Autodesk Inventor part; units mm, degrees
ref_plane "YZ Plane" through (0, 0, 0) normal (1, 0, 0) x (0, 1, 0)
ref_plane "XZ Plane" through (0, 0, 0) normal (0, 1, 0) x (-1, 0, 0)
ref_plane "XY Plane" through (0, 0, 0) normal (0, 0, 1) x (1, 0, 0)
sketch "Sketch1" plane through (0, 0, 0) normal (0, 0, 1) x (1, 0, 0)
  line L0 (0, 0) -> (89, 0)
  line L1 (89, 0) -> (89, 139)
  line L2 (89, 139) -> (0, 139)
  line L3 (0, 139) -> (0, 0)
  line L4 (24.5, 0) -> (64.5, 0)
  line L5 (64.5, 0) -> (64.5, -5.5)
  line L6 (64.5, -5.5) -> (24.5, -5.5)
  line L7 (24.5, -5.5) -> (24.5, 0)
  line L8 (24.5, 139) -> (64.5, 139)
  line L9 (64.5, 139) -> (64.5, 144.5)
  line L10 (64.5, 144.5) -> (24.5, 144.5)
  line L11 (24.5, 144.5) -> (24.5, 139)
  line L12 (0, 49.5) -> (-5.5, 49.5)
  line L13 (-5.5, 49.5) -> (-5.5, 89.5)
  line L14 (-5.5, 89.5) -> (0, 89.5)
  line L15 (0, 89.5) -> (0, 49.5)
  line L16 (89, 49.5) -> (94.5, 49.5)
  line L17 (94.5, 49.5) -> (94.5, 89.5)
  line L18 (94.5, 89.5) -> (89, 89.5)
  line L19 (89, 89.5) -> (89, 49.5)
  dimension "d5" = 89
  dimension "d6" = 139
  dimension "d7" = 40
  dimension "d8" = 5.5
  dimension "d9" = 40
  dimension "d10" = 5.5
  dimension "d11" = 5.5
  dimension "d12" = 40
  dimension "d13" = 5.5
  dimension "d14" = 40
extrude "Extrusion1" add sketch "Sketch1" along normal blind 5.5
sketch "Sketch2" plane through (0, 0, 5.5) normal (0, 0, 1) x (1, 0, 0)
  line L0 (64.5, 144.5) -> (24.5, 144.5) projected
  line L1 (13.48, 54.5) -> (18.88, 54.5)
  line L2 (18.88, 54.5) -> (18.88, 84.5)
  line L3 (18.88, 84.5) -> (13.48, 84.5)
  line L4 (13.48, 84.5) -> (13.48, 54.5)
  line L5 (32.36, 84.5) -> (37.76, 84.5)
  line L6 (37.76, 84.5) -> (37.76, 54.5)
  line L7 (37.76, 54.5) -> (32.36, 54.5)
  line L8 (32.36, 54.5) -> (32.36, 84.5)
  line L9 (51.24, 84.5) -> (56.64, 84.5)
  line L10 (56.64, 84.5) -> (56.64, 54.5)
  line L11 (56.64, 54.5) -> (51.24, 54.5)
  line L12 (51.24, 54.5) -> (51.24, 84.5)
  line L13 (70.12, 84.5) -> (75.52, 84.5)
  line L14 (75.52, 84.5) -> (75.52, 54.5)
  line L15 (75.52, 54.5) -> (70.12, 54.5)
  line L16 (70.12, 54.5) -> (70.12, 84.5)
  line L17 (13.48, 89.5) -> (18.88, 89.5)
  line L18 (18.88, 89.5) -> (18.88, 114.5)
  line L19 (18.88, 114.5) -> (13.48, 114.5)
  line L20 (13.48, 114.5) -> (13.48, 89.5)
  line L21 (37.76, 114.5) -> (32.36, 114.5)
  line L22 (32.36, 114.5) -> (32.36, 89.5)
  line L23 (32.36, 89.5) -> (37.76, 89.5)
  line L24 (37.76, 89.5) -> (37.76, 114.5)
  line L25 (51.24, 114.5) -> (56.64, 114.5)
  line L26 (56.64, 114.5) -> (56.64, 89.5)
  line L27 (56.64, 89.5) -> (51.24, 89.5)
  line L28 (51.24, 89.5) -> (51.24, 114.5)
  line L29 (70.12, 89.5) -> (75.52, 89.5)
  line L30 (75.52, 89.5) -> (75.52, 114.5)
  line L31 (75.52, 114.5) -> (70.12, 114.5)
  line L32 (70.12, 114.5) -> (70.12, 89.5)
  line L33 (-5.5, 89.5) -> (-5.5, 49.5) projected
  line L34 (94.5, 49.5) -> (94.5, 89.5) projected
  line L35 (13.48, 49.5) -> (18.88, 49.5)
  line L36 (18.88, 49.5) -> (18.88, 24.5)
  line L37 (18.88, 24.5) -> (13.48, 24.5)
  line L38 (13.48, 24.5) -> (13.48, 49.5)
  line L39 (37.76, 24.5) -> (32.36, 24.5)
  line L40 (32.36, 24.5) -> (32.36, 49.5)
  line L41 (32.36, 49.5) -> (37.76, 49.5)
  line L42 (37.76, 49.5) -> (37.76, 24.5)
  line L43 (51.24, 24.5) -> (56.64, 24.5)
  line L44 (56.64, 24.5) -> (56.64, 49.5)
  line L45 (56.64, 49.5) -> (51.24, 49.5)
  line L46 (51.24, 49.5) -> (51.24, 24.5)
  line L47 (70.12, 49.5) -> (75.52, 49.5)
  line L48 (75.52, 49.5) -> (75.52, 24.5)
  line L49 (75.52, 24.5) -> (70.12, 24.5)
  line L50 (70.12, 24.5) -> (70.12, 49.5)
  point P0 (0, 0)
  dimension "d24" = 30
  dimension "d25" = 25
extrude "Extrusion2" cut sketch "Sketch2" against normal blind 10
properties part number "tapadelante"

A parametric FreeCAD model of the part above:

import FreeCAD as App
import Part
import Sketcher


def add_polygon(sketch, points):
    """Adds a closed chain of lines whose ends are joined by coincident constraints."""
    first, n = sketch.GeometryCount, len(points)
    for a, b in zip(points, points[1:] + points[:1]):
        sketch.addGeometry(Part.LineSegment(App.Vector(*a, 0), App.Vector(*b, 0)), False)
    for i in range(n):
        sketch.addConstraint(Sketcher.Constraint("Coincident", first + i, 2, first + (i + 1) % n, 1))

doc = App.newDocument("Part")
body = doc.addObject("PartDesign::Body", "Body")

sketch1 = body.newObject("Sketcher::SketchObject", "Sketch")
sketch1.AttachmentSupport = (doc.getObject("XY_Plane"), [""])
sketch1.MapMode = "FlatFace"
add_polygon(sketch1, [(0, 50), (0, 0), (24, 0), (24, -6), (64, -6), (64, 0), (89, 0), (89, 50), (94, 50), (94, 90), (89, 90), (89, 139), (64, 139), (64, 144), (24, 144), (24, 139), (0, 139), (0, 90), (-6, 90), (-6, 50)])
sketch1.addConstraint(Sketcher.Constraint("Vertical", 0))
sketch1.addConstraint(Sketcher.Constraint("Horizontal", 1))
sketch1.addConstraint(Sketcher.Constraint("Vertical", 2))
sketch1.addConstraint(Sketcher.Constraint("Horizontal", 3))
sketch1.addConstraint(Sketcher.Constraint("Vertical", 4))
sketch1.addConstraint(Sketcher.Constraint("Horizontal", 5))
sketch1.addConstraint(Sketcher.Constraint("Vertical", 6))
sketch1.addConstraint(Sketcher.Constraint("Horizontal", 7))
sketch1.addConstraint(Sketcher.Constraint("Vertical", 8))
sketch1.addConstraint(Sketcher.Constraint("Horizontal", 9))
sketch1.addConstraint(Sketcher.Constraint("Vertical", 10))
sketch1.addConstraint(Sketcher.Constraint("Horizontal", 11))
sketch1.addConstraint(Sketcher.Constraint("Vertical", 12))
sketch1.addConstraint(Sketcher.Constraint("Horizontal", 13))
sketch1.addConstraint(Sketcher.Constraint("Vertical", 14))
sketch1.addConstraint(Sketcher.Constraint("Horizontal", 15))
sketch1.addConstraint(Sketcher.Constraint("Vertical", 16))
sketch1.addConstraint(Sketcher.Constraint("Horizontal", 17))
sketch1.addConstraint(Sketcher.Constraint("Vertical", 18))
sketch1.addConstraint(Sketcher.Constraint("Horizontal", 19))
sketch1.addConstraint(Sketcher.Constraint("Coincident", 0, 2, -1, 1))
sketch1.addConstraint(Sketcher.Constraint("PointOnObject", 4, 2, -1))
sketch1.addConstraint(Sketcher.Constraint("PointOnObject", 15, 2, -2))
sketch1.addConstraint(Sketcher.Constraint("Horizontal", 11, 2, 14, 2))
sketch1.addConstraint(Sketcher.Constraint("Horizontal", 9, 2, 16, 2))
sketch1.addConstraint(Sketcher.Constraint("Horizontal", 7, 2, 18, 2))
sketch1.addConstraint(Sketcher.Constraint("Vertical", 6, 2, 9, 2))
sketch1.addConstraint(Sketcher.Constraint("Vertical", 4, 2, 11, 2))
sketch1.addConstraint(Sketcher.Constraint("Vertical", 2, 2, 13, 2))
sketch1.addConstraint(Sketcher.Constraint("Equal", 1, 5))
sketch1.addConstraint(Sketcher.Constraint("Equal", 9, 17))
sketch1.addConstraint(Sketcher.Constraint("Equal", 19, 2))
sketch1.addConstraint(Sketcher.Constraint("Equal", 13, 8))
sketch1.addConstraint(Sketcher.Constraint("Equal", 6, 10))
sketch1.addConstraint(Sketcher.Constraint("Equal", 4, 12))
sketch1.addConstraint(Sketcher.Constraint("DistanceX", 3, 1, 3, 2, 40.0))
sketch1.addConstraint(Sketcher.Constraint("DistanceX", 7, 1, 7, 2, 5.5))
sketch1.addConstraint(Sketcher.Constraint("DistanceX", -1, 1, 5, 2, 89.0))
sketch1.addConstraint(Sketcher.Constraint("DistanceY", -1, 1, 10, 2, 139.0))
pad1 = body.newObject("PartDesign::Pad", "Pad")
pad1.Profile = sketch1
pad1.Length = 5.5

sketch2 = body.newObject("Sketcher::SketchObject", "Sketch001")
sketch2.AttachmentSupport = (doc.getObject("XY_Plane"), [""])
sketch2.MapMode = "FlatFace"
sketch2.AttachmentOffset = App.Placement(App.Vector(0, 0, 5.5), App.Rotation())
add_polygon(sketch2, [(13, 84), (13, 54), (19, 54), (19, 84)])
add_polygon(sketch2, [(38, 84), (32, 84), (32, 54), (38, 54)])
add_polygon(sketch2, [(57, 84), (51, 84), (51, 54), (57, 54)])
add_polygon(sketch2, [(76, 84), (70, 84), (70, 54), (76, 54)])
add_polygon(sketch2, [(13, 114), (13, 90), (19, 90), (19, 114)])
add_polygon(sketch2, [(38, 90), (38, 114), (32, 114), (32, 90)])
add_polygon(sketch2, [(57, 114), (51, 114), (51, 90), (57, 90)])
add_polygon(sketch2, [(70, 114), (70, 90), (76, 90), (76, 114)])
add_polygon(sketch2, [(19, 50), (13, 50), (13, 24), (19, 24)])
add_polygon(sketch2, [(32, 24), (38, 24), (38, 50), (32, 50)])
add_polygon(sketch2, [(51, 50), (51, 24), (57, 24), (57, 50)])
add_polygon(sketch2, [(76, 50), (70, 50), (70, 24), (76, 24)])
sketch2.addConstraint(Sketcher.Constraint("Vertical", 0))
sketch2.addConstraint(Sketcher.Constraint("Horizontal", 1))
sketch2.addConstraint(Sketcher.Constraint("Vertical", 2))
sketch2.addConstraint(Sketcher.Constraint("Horizontal", 3))
sketch2.addConstraint(Sketcher.Constraint("Horizontal", 4))
sketch2.addConstraint(Sketcher.Constraint("Vertical", 5))
sketch2.addConstraint(Sketcher.Constraint("Horizontal", 6))
sketch2.addConstraint(Sketcher.Constraint("Vertical", 7))
sketch2.addConstraint(Sketcher.Constraint("Horizontal", 8))
sketch2.addConstraint(Sketcher.Constraint("Vertical", 9))
sketch2.addConstraint(Sketcher.Constraint("Horizontal", 10))
sketch2.addConstraint(Sketcher.Constraint("Vertical", 11))
sketch2.addConstraint(Sketcher.Constraint("Horizontal", 12))
sketch2.addConstraint(Sketcher.Constraint("Vertical", 13))
sketch2.addConstraint(Sketcher.Constraint("Horizontal", 14))
sketch2.addConstraint(Sketcher.Constraint("Vertical", 15))
sketch2.addConstraint(Sketcher.Constraint("Vertical", 16))
sketch2.addConstraint(Sketcher.Constraint("Horizontal", 17))
sketch2.addConstraint(Sketcher.Constraint("Vertical", 18))
sketch2.addConstraint(Sketcher.Constraint("Horizontal", 19))
sketch2.addConstraint(Sketcher.Constraint("Vertical", 20))
sketch2.addConstraint(Sketcher.Constraint("Horizontal", 21))
sketch2.addConstraint(Sketcher.Constraint("Vertical", 22))
sketch2.addConstraint(Sketcher.Constraint("Horizontal", 23))
sketch2.addConstraint(Sketcher.Constraint("Horizontal", 24))
sketch2.addConstraint(Sketcher.Constraint("Vertical", 25))
sketch2.addConstraint(Sketcher.Constraint("Horizontal", 26))
sketch2.addConstraint(Sketcher.Constraint("Vertical", 27))
sketch2.addConstraint(Sketcher.Constraint("Vertical", 28))
sketch2.addConstraint(Sketcher.Constraint("Horizontal", 29))
sketch2.addConstraint(Sketcher.Constraint("Vertical", 30))
sketch2.addConstraint(Sketcher.Constraint("Horizontal", 31))
sketch2.addConstraint(Sketcher.Constraint("Horizontal", 32))
sketch2.addConstraint(Sketcher.Constraint("Vertical", 33))
sketch2.addConstraint(Sketcher.Constraint("Horizontal", 34))
sketch2.addConstraint(Sketcher.Constraint("Vertical", 35))
sketch2.addConstraint(Sketcher.Constraint("Horizontal", 36))
sketch2.addConstraint(Sketcher.Constraint("Vertical", 37))
sketch2.addConstraint(Sketcher.Constraint("Horizontal", 38))
sketch2.addConstraint(Sketcher.Constraint("Vertical", 39))
sketch2.addConstraint(Sketcher.Constraint("Vertical", 40))
sketch2.addConstraint(Sketcher.Constraint("Horizontal", 41))
sketch2.addConstraint(Sketcher.Constraint("Vertical", 42))
sketch2.addConstraint(Sketcher.Constraint("Horizontal", 43))
sketch2.addConstraint(Sketcher.Constraint("Horizontal", 44))
sketch2.addConstraint(Sketcher.Constraint("Vertical", 45))
sketch2.addConstraint(Sketcher.Constraint("Horizontal", 46))
sketch2.addConstraint(Sketcher.Constraint("Vertical", 47))
sketch2.addConstraint(Sketcher.Constraint("Horizontal", 3, 2, 4, 2))
sketch2.addConstraint(Sketcher.Constraint("Horizontal", 1, 2, 5, 2))
sketch2.addConstraint(Sketcher.Constraint("Horizontal", 7, 2, 8, 2))
sketch2.addConstraint(Sketcher.Constraint("Horizontal", 6, 2, 9, 2))
sketch2.addConstraint(Sketcher.Constraint("Horizontal", 11, 2, 12, 2))
sketch2.addConstraint(Sketcher.Constraint("Horizontal", 10, 2, 13, 2))
sketch2.addConstraint(Sketcher.Constraint("Horizontal", 19, 2, 20, 2))
sketch2.addConstraint(Sketcher.Constraint("Horizontal", 17, 2, 22, 2))
sketch2.addConstraint(Sketcher.Constraint("Horizontal", 21, 2, 24, 2))
sketch2.addConstraint(Sketcher.Constraint("Horizontal", 23, 2, 25, 2))
sketch2.addConstraint(Sketcher.Constraint("Horizontal", 26, 2, 28, 2))
sketch2.addConstraint(Sketcher.Constraint("Horizontal", 27, 2, 30, 2))
sketch2.addConstraint(Sketcher.Constraint("Horizontal", 34, 2, 36, 2))
sketch2.addConstraint(Sketcher.Constraint("Horizontal", 35, 2, 37, 2))
sketch2.addConstraint(Sketcher.Constraint("Horizontal", 39, 2, 40, 2))
sketch2.addConstraint(Sketcher.Constraint("Horizontal", 38, 2, 42, 2))
sketch2.addConstraint(Sketcher.Constraint("Horizontal", 43, 2, 44, 2))
sketch2.addConstraint(Sketcher.Constraint("Horizontal", 41, 2, 45, 2))
sketch2.addConstraint(Sketcher.Constraint("Vertical", 3, 2, 16, 2))
sketch2.addConstraint(Sketcher.Constraint("Vertical", 2, 2, 17, 2))
sketch2.addConstraint(Sketcher.Constraint("Vertical", 7, 2, 20, 2))
sketch2.addConstraint(Sketcher.Constraint("Vertical", 5, 2, 21, 2))
sketch2.addConstraint(Sketcher.Constraint("Vertical", 9, 2, 24, 2))
sketch2.addConstraint(Sketcher.Constraint("Vertical", 11, 2, 26, 2))
sketch2.addConstraint(Sketcher.Constraint("Vertical", 13, 2, 28, 2))
sketch2.addConstraint(Sketcher.Constraint("Vertical", 15, 2, 29, 2))
sketch2.addConstraint(Sketcher.Constraint("Vertical", 19, 2, 32, 2))
sketch2.addConstraint(Sketcher.Constraint("Vertical", 18, 2, 34, 2))
sketch2.addConstraint(Sketcher.Constraint("Vertical", 23, 2, 36, 2))
sketch2.addConstraint(Sketcher.Constraint("Vertical", 22, 2, 38, 2))
sketch2.addConstraint(Sketcher.Constraint("Vertical", 25, 2, 40, 2))
sketch2.addConstraint(Sketcher.Constraint("Vertical", 27, 2, 41, 2))
sketch2.addConstraint(Sketcher.Constraint("Vertical", 31, 2, 44, 2))
sketch2.addConstraint(Sketcher.Constraint("Vertical", 30, 2, 46, 2))
sketch2.addConstraint(Sketcher.Constraint("Equal", 3, 4))
sketch2.addConstraint(Sketcher.Constraint("Equal", 6, 8))
sketch2.addConstraint(Sketcher.Constraint("Equal", 10, 12))
sketch2.addConstraint(Sketcher.Constraint("Equal", 30, 33))
sketch2.addConstraint(Sketcher.Constraint("DistanceY", 0, 2, 0, 1, 30.0))
sketch2.addConstraint(Sketcher.Constraint("DistanceY", 16, 2, 16, 1, 25.0))
sketch2.addConstraint(Sketcher.Constraint("DistanceY", 2, 2, 18, 2, 30.0))
sketch2.addConstraint(Sketcher.Constraint("DistanceY", 33, 2, 0, 2, 30.0))
sketch2.addConstraint(Sketcher.Constraint("DistanceX", 1, 1, 1, 2, 5.4))
sketch2.addConstraint(Sketcher.Constraint("DistanceY", -1, 1, 0, 2, 54.5))
sketch2.addConstraint(Sketcher.Constraint("DistanceX", -1, 1, 0, 2, 13.48))
sketch2.addConstraint(Sketcher.Constraint("DistanceX", -1, 1, 4, 2, 32.36))
sketch2.addConstraint(Sketcher.Constraint("DistanceX", -1, 1, 8, 2, 51.24))
sketch2.addConstraint(Sketcher.Constraint("DistanceX", -1, 1, 12, 2, 70.12))
pocket1 = body.newObject("PartDesign::Pocket", "Pocket")
pocket1.Profile = sketch2
pocket1.Length = 10

doc.recompute()
